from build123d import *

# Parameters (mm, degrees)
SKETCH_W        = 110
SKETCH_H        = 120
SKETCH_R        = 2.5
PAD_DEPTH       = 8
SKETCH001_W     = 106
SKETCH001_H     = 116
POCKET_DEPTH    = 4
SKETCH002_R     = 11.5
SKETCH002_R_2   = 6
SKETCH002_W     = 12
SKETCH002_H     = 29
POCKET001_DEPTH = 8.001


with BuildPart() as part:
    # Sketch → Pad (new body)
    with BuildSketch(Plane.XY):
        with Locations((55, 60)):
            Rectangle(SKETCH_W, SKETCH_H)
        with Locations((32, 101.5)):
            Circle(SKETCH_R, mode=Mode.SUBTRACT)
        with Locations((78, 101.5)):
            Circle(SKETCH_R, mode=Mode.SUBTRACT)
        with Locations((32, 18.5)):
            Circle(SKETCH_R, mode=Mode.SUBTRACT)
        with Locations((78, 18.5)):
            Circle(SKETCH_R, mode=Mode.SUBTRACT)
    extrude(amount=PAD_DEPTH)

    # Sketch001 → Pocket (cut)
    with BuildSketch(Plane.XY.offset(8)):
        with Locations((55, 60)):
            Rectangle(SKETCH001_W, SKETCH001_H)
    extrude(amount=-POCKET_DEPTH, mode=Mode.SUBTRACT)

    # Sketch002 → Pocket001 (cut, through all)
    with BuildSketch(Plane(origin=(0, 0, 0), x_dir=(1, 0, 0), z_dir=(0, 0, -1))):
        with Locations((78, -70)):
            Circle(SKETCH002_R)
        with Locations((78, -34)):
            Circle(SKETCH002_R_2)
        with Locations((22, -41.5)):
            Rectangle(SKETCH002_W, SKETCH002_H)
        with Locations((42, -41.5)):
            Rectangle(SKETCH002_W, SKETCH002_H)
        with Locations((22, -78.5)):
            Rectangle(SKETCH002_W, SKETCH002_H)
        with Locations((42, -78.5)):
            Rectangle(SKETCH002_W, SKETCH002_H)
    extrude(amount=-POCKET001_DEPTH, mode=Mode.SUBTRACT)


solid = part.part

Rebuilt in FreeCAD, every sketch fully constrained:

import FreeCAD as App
import Part
import Sketcher

doc = App.newDocument("Part")
body = doc.addObject("PartDesign::Body", "Body")

# Sketch on XY plane
sketch1 = body.newObject("Sketcher::SketchObject", "Sketch")
sketch1.AttachmentSupport = (doc.getObject("XY_Plane"), [""])
sketch1.MapMode = "FlatFace"
sketch1.addGeometry([
    Part.LineSegment(App.Vector(0, 120, 0), App.Vector(0, 0, 0)),  # 0
    Part.LineSegment(App.Vector(0, 0, 0), App.Vector(110, 0, 0)),  # 1
    Part.LineSegment(App.Vector(110, 0, 0), App.Vector(110, 120, 0)),  # 2
    Part.LineSegment(App.Vector(110, 120, 0), App.Vector(0, 120, 0)),  # 3
    Part.Circle(App.Vector(32, 18.5, 0), App.Vector(0, 0, 1), 2.5),  # 4
    Part.Circle(App.Vector(78, 18.5, 0), App.Vector(0, 0, 1), 2.5),  # 5
    Part.Circle(App.Vector(32, 101.5, 0), App.Vector(0, 0, 1), 2.5),  # 6
    Part.Circle(App.Vector(78, 101.5, 0), App.Vector(0, 0, 1), 2.5),  # 7
], False)
sketch1.addConstraint([
    Sketcher.Constraint("Coincident", 0, 2, 1, 1),
    Sketcher.Constraint("Coincident", 1, 2, 2, 1),
    Sketcher.Constraint("Coincident", 2, 2, 3, 1),
    Sketcher.Constraint("Coincident", 3, 2, 0, 1),
    Sketcher.Constraint("Vertical", 0),
    Sketcher.Constraint("Horizontal", 1),
    Sketcher.Constraint("Vertical", 2),
    Sketcher.Constraint("Horizontal", 3),
    Sketcher.Constraint("Coincident", 0, 2, -1, 1),
    Sketcher.Constraint("Equal", 4, 5),
    Sketcher.Constraint("Equal", 5, 6),
    Sketcher.Constraint("Equal", 6, 7),
    Sketcher.Constraint("Horizontal", 4, 3, 5, 3),
    Sketcher.Constraint("Horizontal", 6, 3, 7, 3),
    Sketcher.Constraint("Vertical", 4, 3, 6, 3),
    Sketcher.Constraint("Vertical", 5, 3, 7, 3),
    Sketcher.Constraint("Diameter", 4, 5.0),
    Sketcher.Constraint("DistanceX", 1, 1, 1, 2, 110.0),
    Sketcher.Constraint("DistanceY", 0, 2, 0, 1, 120.0),
    Sketcher.Constraint("DistanceX", -1, 1, 4, 3, 32.0),
    Sketcher.Constraint("DistanceX", -1, 1, 5, 3, 78.0),
    Sketcher.Constraint("DistanceY", 4, 3, 6, 3, 83.0),
    Sketcher.Constraint("DistanceY", -1, 1, 4, 3, 18.5),
])
pad1 = body.newObject("PartDesign::Pad", "Pad")
pad1.Profile = sketch1
pad1.Length = 8

# Sketch on XY plane
sketch2 = body.newObject("Sketcher::SketchObject", "Sketch001")
sketch2.AttachmentSupport = (doc.getObject("XY_Plane"), [""])
sketch2.MapMode = "FlatFace"
sketch2.AttachmentOffset = App.Placement(App.Vector(0, 0, 8), App.Rotation())
sketch2.addGeometry([
    Part.LineSegment(App.Vector(2, 118, 0), App.Vector(2, 2, 0)),
    Part.LineSegment(App.Vector(2, 2, 0), App.Vector(108, 2, 0)),
    Part.LineSegment(App.Vector(108, 2, 0), App.Vector(108, 118, 0)),
    Part.LineSegment(App.Vector(108, 118, 0), App.Vector(2, 118, 0)),
], False)
sketch2.addConstraint([
    Sketcher.Constraint("Coincident", 0, 2, 1, 1),
    Sketcher.Constraint("Coincident", 1, 2, 2, 1),
    Sketcher.Constraint("Coincident", 2, 2, 3, 1),
    Sketcher.Constraint("Coincident", 3, 2, 0, 1),
    Sketcher.Constraint("Vertical", 0),
    Sketcher.Constraint("Horizontal", 1),
    Sketcher.Constraint("Vertical", 2),
    Sketcher.Constraint("Horizontal", 3),
    Sketcher.Constraint("DistanceX", 1, 1, 1, 2, 106.0),
    Sketcher.Constraint("DistanceY", 0, 2, 0, 1, 116.0),
    Sketcher.Constraint("DistanceX", -1, 1, 0, 2, 2.0),
    Sketcher.Constraint("DistanceY", -1, 1, 0, 2, 2.0),
])
pocket1 = body.newObject("PartDesign::Pocket", "Pocket")
pocket1.Profile = sketch2
pocket1.Length = 4

# Sketch on XY plane
sketch3 = body.newObject("Sketcher::SketchObject", "Sketch002")
sketch3.AttachmentSupport = (doc.getObject("XY_Plane"), [""])
sketch3.MapMode = "FlatFace"
sketch3.addGeometry([
    Part.Circle(App.Vector(78, 70, 0), App.Vector(0, 0, 1), 12),  # 0
    Part.Circle(App.Vector(78, 34, 0), App.Vector(0, 0, 1), 6),  # 1
    Part.LineSegment(App.Vector(16, 27, 0), App.Vector(16, 56, 0)),  # 2
    Part.LineSegment(App.Vector(16, 56, 0), App.Vector(28, 56, 0)),  # 3
    Part.LineSegment(App.Vector(28, 56, 0), App.Vector(28, 27, 0)),  # 4
    Part.LineSegment(App.Vector(28, 27, 0), App.Vector(16, 27, 0)),  # 5
    Part.LineSegment(App.Vector(36, 27, 0), App.Vector(36, 56, 0)),  # 6
    Part.LineSegment(App.Vector(36, 56, 0), App.Vector(48, 56, 0)),  # 7
    Part.LineSegment(App.Vector(48, 56, 0), App.Vector(48, 27, 0)),  # 8
    Part.LineSegment(App.Vector(48, 27, 0), App.Vector(36, 27, 0)),  # 9
    Part.LineSegment(App.Vector(16, 64, 0), App.Vector(16, 93, 0)),  # 10
    Part.LineSegment(App.Vector(16, 93, 0), App.Vector(28, 93, 0)),  # 11
    Part.LineSegment(App.Vector(28, 93, 0), App.Vector(28, 64, 0)),  # 12
    Part.LineSegment(App.Vector(28, 64, 0), App.Vector(16, 64, 0)),  # 13
    Part.LineSegment(App.Vector(36, 64, 0), App.Vector(36, 93, 0)),  # 14
    Part.LineSegment(App.Vector(36, 93, 0), App.Vector(48, 93, 0)),  # 15
    Part.LineSegment(App.Vector(48, 93, 0), App.Vector(48, 64, 0)),  # 16
    Part.LineSegment(App.Vector(48, 64, 0), App.Vector(36, 64, 0)),  # 17
], False)
sketch3.addConstraint([
    Sketcher.Constraint("Coincident", 2, 2, 3, 1),
    Sketcher.Constraint("Coincident", 3, 2, 4, 1),
    Sketcher.Constraint("Coincident", 4, 2, 5, 1),
    Sketcher.Constraint("Coincident", 5, 2, 2, 1),
    Sketcher.Constraint("Coincident", 6, 2, 7, 1),
    Sketcher.Constraint("Coincident", 7, 2, 8, 1),
    Sketcher.Constraint("Coincident", 8, 2, 9, 1),
    Sketcher.Constraint("Coincident", 9, 2, 6, 1),
    Sketcher.Constraint("Coincident", 10, 2, 11, 1),
    Sketcher.Constraint("Coincident", 11, 2, 12, 1),
    Sketcher.Constraint("Coincident", 12, 2, 13, 1),
    Sketcher.Constraint("Coincident", 13, 2, 10, 1),
    Sketcher.Constraint("Coincident", 14, 2, 15, 1),
    Sketcher.Constraint("Coincident", 15, 2, 16, 1),
    Sketcher.Constraint("Coincident", 16, 2, 17, 1),
    Sketcher.Constraint("Coincident", 17, 2, 14, 1),
    Sketcher.Constraint("Vertical", 2),
    Sketcher.Constraint("Horizontal", 3),
    Sketcher.Constraint("Vertical", 4),
    Sketcher.Constraint("Horizontal", 5),
    Sketcher.Constraint("Vertical", 6),
    Sketcher.Constraint("Horizontal", 7),
    Sketcher.Constraint("Vertical", 8),
    Sketcher.Constraint("Horizontal", 9),
    Sketcher.Constraint("Vertical", 10),
    Sketcher.Constraint("Horizontal", 11),
    Sketcher.Constraint("Vertical", 12),
    Sketcher.Constraint("Horizontal", 13),
    Sketcher.Constraint("Vertical", 14),
    Sketcher.Constraint("Horizontal", 15),
    Sketcher.Constraint("Vertical", 16),
    Sketcher.Constraint("Horizontal", 17),
    Sketcher.Constraint("Horizontal", 3, 2, 6, 2),
    Sketcher.Constraint("Horizontal", 5, 2, 8, 2),
    Sketcher.Constraint("Horizontal", 11, 2, 14, 2),
    Sketcher.Constraint("Horizontal", 13, 2, 16, 2),
    Sketcher.Constraint("Vertical", 0, 3, 1, 3),
    Sketcher.Constraint("Vertical", 5, 2, 10, 2),
    Sketcher.Constraint("Vertical", 4, 2, 11, 2),
    Sketcher.Constraint("Vertical", 9, 2, 14, 2),
    Sketcher.Constraint("Vertical", 8, 2, 15, 2),
    Sketcher.Constraint("Equal", 5, 7),
    Sketcher.Constraint("Equal", 8, 10),
    Sketcher.Constraint("Diameter", 0, 23.0),
    Sketcher.Constraint("Diameter", 1, 12.0),
    Sketcher.Constraint("DistanceX", 3, 1, 3, 2, 12.0),
    Sketcher.Constraint("DistanceY", 2, 1, 2, 2, 29.0),
    Sketcher.Constraint("DistanceX", -1, 1, 0, 3, 78.0),
    Sketcher.Constraint("DistanceY", -1, 1, 0, 3, 70.0),
    Sketcher.Constraint("DistanceY", -1, 1, 1, 3, 34.0),
    Sketcher.Constraint("DistanceX", -1, 1, 2, 2, 16.0),
    Sketcher.Constraint("DistanceY", -1, 1, 2, 2, 56.0),
    Sketcher.Constraint("DistanceX", -1, 1, 6, 2, 36.0),
    Sketcher.Constraint("DistanceY", -1, 1, 10, 2, 93.0),
])
pocket2 = body.newObject("PartDesign::Pocket", "Pocket001")
pocket2.Profile = sketch3
pocket2.Type = "ThroughAll"
pocket2.Reversed = True

doc.recompute()
